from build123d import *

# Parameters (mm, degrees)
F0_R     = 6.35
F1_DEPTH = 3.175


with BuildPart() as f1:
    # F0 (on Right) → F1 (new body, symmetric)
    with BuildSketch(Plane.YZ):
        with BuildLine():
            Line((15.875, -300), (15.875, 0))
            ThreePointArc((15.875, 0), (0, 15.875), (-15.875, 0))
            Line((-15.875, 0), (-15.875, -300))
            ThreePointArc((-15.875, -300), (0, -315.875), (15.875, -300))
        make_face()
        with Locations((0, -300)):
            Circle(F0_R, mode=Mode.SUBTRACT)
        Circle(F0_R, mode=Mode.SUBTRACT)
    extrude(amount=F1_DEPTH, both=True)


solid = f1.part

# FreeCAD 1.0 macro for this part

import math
import FreeCAD as App
import Part
import Sketcher

V = App.Vector
Q = App.Units.Quantity

doc = App.newDocument("Part")
body = doc.addObject("PartDesign::Body", "Body")

# Sketch on YZ plane
sketch1 = body.newObject("Sketcher::SketchObject", "Sketch")
sketch1.AttachmentSupport = (doc.getObject("YZ_Plane"), [""])
sketch1.MapMode = "FlatFace"
sketch1.addGeometry([
    Part.LineSegment(V(16, -300, 0), V(16, 0, 0)),  # 0
    Part.ArcOfCircle(Part.Circle(V(0, 0, 0), V(0, 0, 1), 16), math.radians(0), math.radians(180)),  # 1
    Part.LineSegment(V(-16, 0, 0), V(-16, -300, 0)),  # 2
    Part.ArcOfCircle(Part.Circle(V(0, -300, 0), V(0, 0, 1), 16), math.radians(180), math.radians(360)),  # 3
    Part.Circle(V(0, -300, 0), V(0, 0, 1), 6),  # 4
    Part.Circle(V(0, 0, 0), V(0, 0, 1), 6),  # 5
], False)
sketch1.addConstraint([
    Sketcher.Constraint("Tangent", 0, 2, 1, 1),
    Sketcher.Constraint("Tangent", 1, 2, 2, 1),
    Sketcher.Constraint("Tangent", 2, 2, 3, 1),
    Sketcher.Constraint("Tangent", 3, 2, 0, 1),
    Sketcher.Constraint("Vertical", 0),
    Sketcher.Constraint("Vertical", 2),
    Sketcher.Constraint("Coincident", 1, 3, -1, 1),
    Sketcher.Constraint("Coincident", 5, 3, -1, 1),
    Sketcher.Constraint("Coincident", 4, 3, 3, 3),
    Sketcher.Constraint("Equal", 4, 5),
    Sketcher.Constraint("Diameter", 4, Q("0.5 in")),
    Sketcher.Constraint("Radius", 1, Q("0.625 in")),
    Sketcher.Constraint("DistanceY", 0, 1, 0, 2, 300.0),
])
pad1 = body.newObject("PartDesign::Pad", "Pad")
pad1.Profile = sketch1
pad1.Length = Q("0.25 in")
pad1.Midplane = True

doc.recompute()
